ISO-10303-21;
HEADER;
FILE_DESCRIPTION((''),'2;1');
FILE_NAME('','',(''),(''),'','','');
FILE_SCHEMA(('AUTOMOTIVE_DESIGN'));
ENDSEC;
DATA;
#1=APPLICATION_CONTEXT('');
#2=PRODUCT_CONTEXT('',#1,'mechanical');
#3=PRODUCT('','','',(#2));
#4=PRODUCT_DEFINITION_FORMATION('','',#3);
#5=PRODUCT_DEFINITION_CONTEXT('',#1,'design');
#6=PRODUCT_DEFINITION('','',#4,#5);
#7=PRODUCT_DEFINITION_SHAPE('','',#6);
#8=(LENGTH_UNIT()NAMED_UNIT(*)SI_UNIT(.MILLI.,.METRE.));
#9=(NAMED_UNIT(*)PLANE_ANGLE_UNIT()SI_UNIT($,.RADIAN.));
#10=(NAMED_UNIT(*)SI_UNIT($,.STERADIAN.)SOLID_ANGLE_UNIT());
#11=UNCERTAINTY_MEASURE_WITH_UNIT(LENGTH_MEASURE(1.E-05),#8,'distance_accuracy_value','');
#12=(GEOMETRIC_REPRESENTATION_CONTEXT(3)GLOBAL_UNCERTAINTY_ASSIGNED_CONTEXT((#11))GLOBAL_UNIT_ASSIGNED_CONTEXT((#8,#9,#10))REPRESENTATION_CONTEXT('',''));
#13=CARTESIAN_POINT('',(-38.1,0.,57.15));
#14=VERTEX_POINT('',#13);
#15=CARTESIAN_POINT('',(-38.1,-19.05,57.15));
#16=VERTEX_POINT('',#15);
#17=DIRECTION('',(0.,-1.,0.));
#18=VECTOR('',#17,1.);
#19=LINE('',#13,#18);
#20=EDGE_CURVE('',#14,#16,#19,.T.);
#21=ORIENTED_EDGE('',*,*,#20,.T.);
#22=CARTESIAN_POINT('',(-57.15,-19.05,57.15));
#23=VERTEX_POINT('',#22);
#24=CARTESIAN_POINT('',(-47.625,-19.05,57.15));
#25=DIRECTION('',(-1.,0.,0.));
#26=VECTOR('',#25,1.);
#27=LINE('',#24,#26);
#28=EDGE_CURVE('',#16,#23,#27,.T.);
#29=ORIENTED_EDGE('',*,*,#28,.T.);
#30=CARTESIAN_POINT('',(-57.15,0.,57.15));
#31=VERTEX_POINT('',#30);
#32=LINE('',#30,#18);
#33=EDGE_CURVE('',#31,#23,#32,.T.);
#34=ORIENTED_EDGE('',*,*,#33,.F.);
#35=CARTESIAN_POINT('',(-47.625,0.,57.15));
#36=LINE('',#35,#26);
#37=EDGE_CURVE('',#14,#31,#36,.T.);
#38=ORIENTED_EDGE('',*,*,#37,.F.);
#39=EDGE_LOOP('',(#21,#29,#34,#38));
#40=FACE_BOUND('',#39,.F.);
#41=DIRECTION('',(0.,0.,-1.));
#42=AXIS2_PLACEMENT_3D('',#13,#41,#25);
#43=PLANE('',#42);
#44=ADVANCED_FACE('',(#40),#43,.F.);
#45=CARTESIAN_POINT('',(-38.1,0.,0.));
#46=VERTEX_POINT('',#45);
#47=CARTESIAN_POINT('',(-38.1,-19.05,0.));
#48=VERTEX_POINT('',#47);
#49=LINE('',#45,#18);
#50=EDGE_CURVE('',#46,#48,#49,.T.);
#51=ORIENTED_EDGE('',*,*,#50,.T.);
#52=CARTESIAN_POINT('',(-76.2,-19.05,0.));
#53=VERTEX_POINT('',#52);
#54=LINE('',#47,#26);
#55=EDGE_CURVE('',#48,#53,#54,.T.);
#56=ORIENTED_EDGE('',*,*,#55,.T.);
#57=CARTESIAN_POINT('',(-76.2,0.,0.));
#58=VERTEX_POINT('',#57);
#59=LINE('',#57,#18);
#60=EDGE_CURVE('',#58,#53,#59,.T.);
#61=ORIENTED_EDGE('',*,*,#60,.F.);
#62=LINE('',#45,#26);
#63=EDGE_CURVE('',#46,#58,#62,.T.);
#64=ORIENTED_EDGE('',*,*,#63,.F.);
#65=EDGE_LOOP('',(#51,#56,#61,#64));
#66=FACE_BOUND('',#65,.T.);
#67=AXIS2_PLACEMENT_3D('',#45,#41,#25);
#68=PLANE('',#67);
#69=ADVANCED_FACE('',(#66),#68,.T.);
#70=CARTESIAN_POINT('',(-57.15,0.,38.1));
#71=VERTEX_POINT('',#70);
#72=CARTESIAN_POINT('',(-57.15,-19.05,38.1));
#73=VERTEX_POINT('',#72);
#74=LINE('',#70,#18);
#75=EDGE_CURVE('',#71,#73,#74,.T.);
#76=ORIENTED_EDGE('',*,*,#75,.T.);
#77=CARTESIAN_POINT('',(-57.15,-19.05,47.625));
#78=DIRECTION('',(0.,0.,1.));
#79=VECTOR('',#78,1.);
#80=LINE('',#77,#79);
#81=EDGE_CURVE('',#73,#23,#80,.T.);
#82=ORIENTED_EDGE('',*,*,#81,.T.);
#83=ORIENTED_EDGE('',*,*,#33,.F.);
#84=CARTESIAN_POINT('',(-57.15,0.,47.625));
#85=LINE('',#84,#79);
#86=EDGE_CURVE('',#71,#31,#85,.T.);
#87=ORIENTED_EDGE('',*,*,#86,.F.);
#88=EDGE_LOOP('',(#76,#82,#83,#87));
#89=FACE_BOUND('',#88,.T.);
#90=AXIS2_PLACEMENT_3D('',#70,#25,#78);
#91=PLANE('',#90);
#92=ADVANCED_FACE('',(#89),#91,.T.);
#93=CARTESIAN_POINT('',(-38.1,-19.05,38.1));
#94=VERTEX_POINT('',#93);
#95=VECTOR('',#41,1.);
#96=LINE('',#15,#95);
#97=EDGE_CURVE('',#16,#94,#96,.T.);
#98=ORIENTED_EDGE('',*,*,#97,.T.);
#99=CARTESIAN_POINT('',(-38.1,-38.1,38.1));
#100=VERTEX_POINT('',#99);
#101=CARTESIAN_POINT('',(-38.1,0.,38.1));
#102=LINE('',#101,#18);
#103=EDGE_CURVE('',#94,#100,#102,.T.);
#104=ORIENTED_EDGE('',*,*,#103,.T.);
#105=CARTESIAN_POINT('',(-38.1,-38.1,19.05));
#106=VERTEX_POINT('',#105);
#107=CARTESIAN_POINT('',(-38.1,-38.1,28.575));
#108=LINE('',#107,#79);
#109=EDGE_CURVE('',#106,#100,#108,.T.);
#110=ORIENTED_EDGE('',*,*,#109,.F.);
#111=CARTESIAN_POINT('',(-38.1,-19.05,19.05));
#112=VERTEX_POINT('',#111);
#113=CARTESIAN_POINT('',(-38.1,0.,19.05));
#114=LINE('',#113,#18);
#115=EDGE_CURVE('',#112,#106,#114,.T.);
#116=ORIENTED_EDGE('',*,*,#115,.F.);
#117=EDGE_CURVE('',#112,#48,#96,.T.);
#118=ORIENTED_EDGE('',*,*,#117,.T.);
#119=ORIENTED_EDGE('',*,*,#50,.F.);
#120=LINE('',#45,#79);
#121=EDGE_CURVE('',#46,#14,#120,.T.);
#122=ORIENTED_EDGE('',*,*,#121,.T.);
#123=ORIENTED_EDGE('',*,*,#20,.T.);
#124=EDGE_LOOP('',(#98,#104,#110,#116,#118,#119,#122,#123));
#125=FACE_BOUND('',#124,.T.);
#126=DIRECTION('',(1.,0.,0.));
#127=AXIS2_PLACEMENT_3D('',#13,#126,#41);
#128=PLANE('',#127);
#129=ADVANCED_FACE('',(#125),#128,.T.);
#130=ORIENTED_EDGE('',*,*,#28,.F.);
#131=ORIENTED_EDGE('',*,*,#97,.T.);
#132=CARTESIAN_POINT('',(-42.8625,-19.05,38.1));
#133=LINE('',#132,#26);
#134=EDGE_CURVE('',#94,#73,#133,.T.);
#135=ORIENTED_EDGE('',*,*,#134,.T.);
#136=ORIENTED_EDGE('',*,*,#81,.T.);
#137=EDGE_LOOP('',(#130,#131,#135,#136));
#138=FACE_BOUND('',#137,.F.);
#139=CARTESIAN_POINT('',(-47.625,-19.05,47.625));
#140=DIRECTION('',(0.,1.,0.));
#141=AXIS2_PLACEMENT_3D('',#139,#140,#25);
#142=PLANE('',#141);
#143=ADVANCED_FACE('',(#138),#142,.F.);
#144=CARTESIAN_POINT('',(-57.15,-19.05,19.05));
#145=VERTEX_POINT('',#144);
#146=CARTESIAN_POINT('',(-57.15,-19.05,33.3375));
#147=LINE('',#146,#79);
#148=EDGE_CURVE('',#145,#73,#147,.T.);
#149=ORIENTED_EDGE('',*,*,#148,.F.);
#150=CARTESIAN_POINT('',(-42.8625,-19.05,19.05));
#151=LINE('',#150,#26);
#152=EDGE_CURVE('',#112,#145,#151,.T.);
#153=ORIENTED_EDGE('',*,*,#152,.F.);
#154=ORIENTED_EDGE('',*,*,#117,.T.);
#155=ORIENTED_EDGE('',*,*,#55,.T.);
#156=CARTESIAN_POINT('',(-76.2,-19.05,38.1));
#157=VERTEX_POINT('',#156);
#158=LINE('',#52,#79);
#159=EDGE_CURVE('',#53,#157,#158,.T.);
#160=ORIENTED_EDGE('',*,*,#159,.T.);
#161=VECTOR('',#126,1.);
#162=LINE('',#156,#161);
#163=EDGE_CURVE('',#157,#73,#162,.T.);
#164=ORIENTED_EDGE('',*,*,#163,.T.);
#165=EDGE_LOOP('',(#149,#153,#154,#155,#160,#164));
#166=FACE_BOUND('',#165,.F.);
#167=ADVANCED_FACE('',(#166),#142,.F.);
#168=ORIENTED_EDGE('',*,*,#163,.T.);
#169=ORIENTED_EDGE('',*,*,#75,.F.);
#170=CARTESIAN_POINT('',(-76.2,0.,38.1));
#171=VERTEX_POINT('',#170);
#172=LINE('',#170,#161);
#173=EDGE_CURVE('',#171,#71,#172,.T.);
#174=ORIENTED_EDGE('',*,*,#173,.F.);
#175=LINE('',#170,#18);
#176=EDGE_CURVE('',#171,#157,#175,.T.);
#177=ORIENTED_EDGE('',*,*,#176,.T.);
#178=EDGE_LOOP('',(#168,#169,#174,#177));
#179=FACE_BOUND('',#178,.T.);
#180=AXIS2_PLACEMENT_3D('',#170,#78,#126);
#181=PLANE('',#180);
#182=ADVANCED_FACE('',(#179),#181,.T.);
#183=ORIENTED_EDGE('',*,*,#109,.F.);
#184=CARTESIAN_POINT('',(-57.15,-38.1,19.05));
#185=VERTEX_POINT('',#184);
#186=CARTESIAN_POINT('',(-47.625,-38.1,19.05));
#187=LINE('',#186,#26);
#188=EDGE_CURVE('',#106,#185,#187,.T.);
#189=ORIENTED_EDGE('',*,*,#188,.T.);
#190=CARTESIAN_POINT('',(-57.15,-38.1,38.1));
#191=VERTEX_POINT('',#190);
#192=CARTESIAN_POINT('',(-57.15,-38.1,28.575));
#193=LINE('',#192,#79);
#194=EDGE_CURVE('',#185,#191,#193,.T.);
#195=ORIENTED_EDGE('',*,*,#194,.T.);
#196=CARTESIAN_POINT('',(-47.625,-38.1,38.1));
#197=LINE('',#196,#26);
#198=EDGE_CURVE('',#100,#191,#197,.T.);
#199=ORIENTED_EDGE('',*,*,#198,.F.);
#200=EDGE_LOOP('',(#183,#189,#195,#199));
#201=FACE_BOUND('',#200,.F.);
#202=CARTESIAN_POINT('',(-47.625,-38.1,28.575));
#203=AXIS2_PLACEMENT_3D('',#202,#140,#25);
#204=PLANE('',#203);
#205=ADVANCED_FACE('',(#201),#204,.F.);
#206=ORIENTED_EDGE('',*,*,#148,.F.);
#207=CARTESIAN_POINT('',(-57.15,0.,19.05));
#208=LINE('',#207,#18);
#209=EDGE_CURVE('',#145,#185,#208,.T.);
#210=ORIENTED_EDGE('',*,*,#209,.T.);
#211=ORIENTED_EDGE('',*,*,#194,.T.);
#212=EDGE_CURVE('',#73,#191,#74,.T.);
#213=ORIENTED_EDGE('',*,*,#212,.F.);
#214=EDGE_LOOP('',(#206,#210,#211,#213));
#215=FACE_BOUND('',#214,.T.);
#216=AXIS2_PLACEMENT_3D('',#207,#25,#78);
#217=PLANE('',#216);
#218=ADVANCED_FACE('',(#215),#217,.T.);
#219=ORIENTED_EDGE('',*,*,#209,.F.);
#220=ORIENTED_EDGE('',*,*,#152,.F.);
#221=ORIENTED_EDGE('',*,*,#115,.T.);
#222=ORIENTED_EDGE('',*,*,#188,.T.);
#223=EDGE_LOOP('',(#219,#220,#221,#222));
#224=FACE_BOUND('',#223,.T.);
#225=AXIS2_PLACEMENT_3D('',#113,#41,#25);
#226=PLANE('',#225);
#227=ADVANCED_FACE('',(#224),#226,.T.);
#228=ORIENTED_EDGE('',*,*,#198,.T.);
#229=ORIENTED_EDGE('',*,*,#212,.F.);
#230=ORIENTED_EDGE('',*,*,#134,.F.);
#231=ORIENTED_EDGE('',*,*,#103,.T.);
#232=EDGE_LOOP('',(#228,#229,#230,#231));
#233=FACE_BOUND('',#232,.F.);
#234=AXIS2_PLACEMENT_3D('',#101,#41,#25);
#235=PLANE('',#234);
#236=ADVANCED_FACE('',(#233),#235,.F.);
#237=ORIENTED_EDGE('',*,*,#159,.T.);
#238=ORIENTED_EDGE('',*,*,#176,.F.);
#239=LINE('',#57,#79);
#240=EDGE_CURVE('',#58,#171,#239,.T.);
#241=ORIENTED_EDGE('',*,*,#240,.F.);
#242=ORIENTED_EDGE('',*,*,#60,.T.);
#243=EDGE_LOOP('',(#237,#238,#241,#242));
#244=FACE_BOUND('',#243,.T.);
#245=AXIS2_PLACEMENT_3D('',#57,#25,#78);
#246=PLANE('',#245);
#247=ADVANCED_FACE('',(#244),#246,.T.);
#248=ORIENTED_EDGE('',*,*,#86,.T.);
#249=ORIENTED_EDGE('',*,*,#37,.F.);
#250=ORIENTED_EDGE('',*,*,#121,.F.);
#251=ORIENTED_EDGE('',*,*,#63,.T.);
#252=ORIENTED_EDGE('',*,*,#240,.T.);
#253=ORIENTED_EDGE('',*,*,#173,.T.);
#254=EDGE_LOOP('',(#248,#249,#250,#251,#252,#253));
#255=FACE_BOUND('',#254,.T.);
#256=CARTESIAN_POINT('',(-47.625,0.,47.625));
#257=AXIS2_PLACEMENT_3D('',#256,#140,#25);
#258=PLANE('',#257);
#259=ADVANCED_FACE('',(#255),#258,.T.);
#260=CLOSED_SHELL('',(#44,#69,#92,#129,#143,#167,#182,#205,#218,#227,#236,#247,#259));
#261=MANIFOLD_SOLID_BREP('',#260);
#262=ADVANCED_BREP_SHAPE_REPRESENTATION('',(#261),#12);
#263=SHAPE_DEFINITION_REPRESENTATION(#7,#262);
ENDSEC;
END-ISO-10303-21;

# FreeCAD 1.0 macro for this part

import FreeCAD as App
import Part
import Sketcher
Q = App.Units.Quantity

doc = App.newDocument("Part")
body = doc.addObject("PartDesign::Body", "Body")

sketch1 = body.newObject("Sketcher::SketchObject", "Sketch")
sketch1.AttachmentSupport = (doc.getObject("XZ_Plane"), [""])
sketch1.MapMode = "FlatFace"
sketch1.addGeometry([
    Part.LineSegment(App.Vector(-38, 57, 0), App.Vector(-38, 0, 0)),
    Part.LineSegment(App.Vector(-38, 0, 0), App.Vector(0, 0, 0)),
    Part.LineSegment(App.Vector(0, 0, 0), App.Vector(0, 38, 0)),
    Part.LineSegment(App.Vector(0, 38, 0), App.Vector(-19, 38, 0)),
    Part.LineSegment(App.Vector(-19, 38, 0), App.Vector(-19, 57, 0)),
    Part.LineSegment(App.Vector(-19, 57, 0), App.Vector(-38, 57, 0)),
], False)
sketch1.addConstraint([
    Sketcher.Constraint("Coincident", 0, 2, 1, 1),
    Sketcher.Constraint("Coincident", 1, 2, 2, 1),
    Sketcher.Constraint("Coincident", 2, 2, 3, 1),
    Sketcher.Constraint("Coincident", 3, 2, 4, 1),
    Sketcher.Constraint("Coincident", 4, 2, 5, 1),
    Sketcher.Constraint("Coincident", 5, 2, 0, 1),
    Sketcher.Constraint("Vertical", 0),
    Sketcher.Constraint("Horizontal", 1),
    Sketcher.Constraint("Vertical", 2),
    Sketcher.Constraint("Horizontal", 3),
    Sketcher.Constraint("Vertical", 4),
    Sketcher.Constraint("Horizontal", 5),
    Sketcher.Constraint("Coincident", 1, 2, -1, 1),
    Sketcher.Constraint("Equal", 3, 5),
    Sketcher.Constraint("Equal", 1, 2),
    Sketcher.Constraint("Equal", 5, 4),
    Sketcher.Constraint("DistanceX", 1, 1, 1, 2, Q("1.5 in")),
])
pad1 = body.newObject("PartDesign::Pad", "Pad")
pad1.Profile = sketch1
pad1.Length = Q("0.75 in")
pad1.Reversed = True

sketch2 = body.newObject("Sketcher::SketchObject", "Sketch001")
sketch2.AttachmentSupport = (doc.getObject("XZ_Plane"), [""])
sketch2.MapMode = "FlatFace"
sketch2.addGeometry([
    Part.LineSegment(App.Vector(-38, 38, 0), App.Vector(-38, 19, 0)),
    Part.LineSegment(App.Vector(-38, 19, 0), App.Vector(-19, 19, 0)),
    Part.LineSegment(App.Vector(-19, 19, 0), App.Vector(-19, 38, 0)),
    Part.LineSegment(App.Vector(-19, 38, 0), App.Vector(-38, 38, 0)),
], False)
sketch2.addConstraint([
    Sketcher.Constraint("Coincident", 0, 2, 1, 1),
    Sketcher.Constraint("Coincident", 1, 2, 2, 1),
    Sketcher.Constraint("Coincident", 2, 2, 3, 1),
    Sketcher.Constraint("Coincident", 3, 2, 0, 1),
    Sketcher.Constraint("Vertical", 0),
    Sketcher.Constraint("Horizontal", 1),
    Sketcher.Constraint("Vertical", 2),
    Sketcher.Constraint("Horizontal", 3),
    Sketcher.Constraint("Equal", 3, 0),
    Sketcher.Constraint("DistanceX", 1, 1, 1, 2, Q("0.75 in")),
    Sketcher.Constraint("DistanceX", 0, 2, -1, 1, Q("1.5 in")),
    Sketcher.Constraint("DistanceY", -1, 1, 2, 2, Q("1.5 in")),
])
pad2 = body.newObject("PartDesign::Pad", "Pad001")
pad2.Profile = sketch2
pad2.Length = Q("1.5 in")
pad2.Reversed = True
body2 = doc.addObject("PartDesign::Body", "Body001")
doc.recompute()

body.Placement = App.Placement(App.Vector(-76.2, 0, 0), App.Rotation(App.Vector(0, 0, -1), 180))
boolean = body2.newObject("PartDesign::Boolean", "Boolean")
boolean.Type = "Fuse"
boolean.addObjects([body])

doc.recompute()
